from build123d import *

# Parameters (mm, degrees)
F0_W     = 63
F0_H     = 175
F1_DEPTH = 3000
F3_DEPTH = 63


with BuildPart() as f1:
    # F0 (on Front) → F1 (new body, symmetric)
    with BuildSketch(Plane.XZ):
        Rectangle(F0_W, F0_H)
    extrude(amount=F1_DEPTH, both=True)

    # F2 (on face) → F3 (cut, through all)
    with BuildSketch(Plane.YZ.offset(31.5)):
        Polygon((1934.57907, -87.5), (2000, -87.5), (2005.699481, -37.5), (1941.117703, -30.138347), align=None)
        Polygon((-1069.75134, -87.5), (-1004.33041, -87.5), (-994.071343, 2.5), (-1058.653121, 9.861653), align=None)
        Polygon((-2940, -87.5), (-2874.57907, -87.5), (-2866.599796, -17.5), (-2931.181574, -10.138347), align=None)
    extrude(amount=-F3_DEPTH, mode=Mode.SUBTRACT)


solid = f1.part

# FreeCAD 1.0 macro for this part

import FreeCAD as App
import Part
import Sketcher

doc = App.newDocument("Part")
body = doc.addObject("PartDesign::Body", "Body")

# Sketch on XZ plane
sketch1 = body.newObject("Sketcher::SketchObject", "Sketch")
sketch1.AttachmentSupport = (doc.getObject("XZ_Plane"), [""])
sketch1.MapMode = "FlatFace"
sketch1.addGeometry([
    Part.LineSegment(App.Vector(-31.5, 87.5, 0), App.Vector(-31.5, -87.5, 0)),
    Part.LineSegment(App.Vector(-31.5, -87.5, 0), App.Vector(31.5, -87.5, 0)),
    Part.LineSegment(App.Vector(31.5, -87.5, 0), App.Vector(31.5, 87.5, 0)),
    Part.LineSegment(App.Vector(31.5, 87.5, 0), App.Vector(-31.5, 87.5, 0)),
], False)
sketch1.addConstraint([
    Sketcher.Constraint("Coincident", 0, 2, 1, 1),
    Sketcher.Constraint("Coincident", 1, 2, 2, 1),
    Sketcher.Constraint("Coincident", 2, 2, 3, 1),
    Sketcher.Constraint("Coincident", 3, 2, 0, 1),
    Sketcher.Constraint("Vertical", 0),
    Sketcher.Constraint("Horizontal", 1),
    Sketcher.Constraint("Vertical", 2),
    Sketcher.Constraint("Horizontal", 3),
    Sketcher.Constraint("Symmetric", 0, 2, 2, 2, -1, 1),
    Sketcher.Constraint("DistanceX", 1, 1, 1, 2, 63.0),
    Sketcher.Constraint("DistanceY", 0, 2, 0, 1, 175.0),
])
pad1 = body.newObject("PartDesign::Pad", "Pad")
pad1.Profile = sketch1
pad1.Length = 6000
pad1.Midplane = True

# Sketch on YZ plane
sketch2 = body.newObject("Sketcher::SketchObject", "Sketch001")
sketch2.AttachmentSupport = (doc.getObject("YZ_Plane"), [""])
sketch2.MapMode = "FlatFace"
sketch2.AttachmentOffset = App.Placement(App.Vector(0, 0, 31.5), App.Rotation())
sketch2.addGeometry([
    Part.LineSegment(App.Vector(1934.57907, -87.5, 0), App.Vector(2000, -87.5, 0)),  # 0
    Part.LineSegment(App.Vector(2000, -87.5, 0), App.Vector(2005.699481, -37.5, 0)),  # 1
    Part.LineSegment(App.Vector(2005.699481, -37.5, 0), App.Vector(1941.117703, -30.138347, 0)),  # 2
    Part.LineSegment(App.Vector(1941.117703, -30.138347, 0), App.Vector(1934.57907, -87.5, 0)),  # 3
    Part.LineSegment(App.Vector(-1069.75134, -87.5, 0), App.Vector(-1004.33041, -87.5, 0)),  # 4
    Part.LineSegment(App.Vector(-1004.33041, -87.5, 0), App.Vector(-994.071343, 2.5, 0)),  # 5
    Part.LineSegment(App.Vector(-994.071343, 2.5, 0), App.Vector(-1058.653121, 9.861653, 0)),  # 6
    Part.LineSegment(App.Vector(-1058.653121, 9.861653, 0), App.Vector(-1069.75134, -87.5, 0)),  # 7
    Part.LineSegment(App.Vector(-2940, -87.5, 0), App.Vector(-2874.57907, -87.5, 0)),  # 8
    Part.LineSegment(App.Vector(-2874.57907, -87.5, 0), App.Vector(-2866.599796, -17.5, 0)),  # 9
    Part.LineSegment(App.Vector(-2866.599796, -17.5, 0), App.Vector(-2931.181574, -10.138347, 0)),  # 10
    Part.LineSegment(App.Vector(-2931.181574, -10.138347, 0), App.Vector(-2940, -87.5, 0)),  # 11
], False)
sketch2.addConstraint([
    Sketcher.Constraint("Coincident", 0, 2, 1, 1),
    Sketcher.Constraint("Coincident", 1, 2, 2, 1),
    Sketcher.Constraint("Coincident", 2, 2, 3, 1),
    Sketcher.Constraint("Coincident", 3, 2, 0, 1),
    Sketcher.Constraint("Coincident", 4, 2, 5, 1),
    Sketcher.Constraint("Coincident", 5, 2, 6, 1),
    Sketcher.Constraint("Coincident", 6, 2, 7, 1),
    Sketcher.Constraint("Coincident", 7, 2, 4, 1),
    Sketcher.Constraint("Coincident", 8, 2, 9, 1),
    Sketcher.Constraint("Coincident", 9, 2, 10, 1),
    Sketcher.Constraint("Coincident", 10, 2, 11, 1),
    Sketcher.Constraint("Coincident", 11, 2, 8, 1),
    Sketcher.Constraint("Horizontal", 0),
    Sketcher.Constraint("Horizontal", 4),
    Sketcher.Constraint("Horizontal", 8),
    Sketcher.Constraint("Perpendicular", 1, 2),
    Sketcher.Constraint("Perpendicular", 2, 3),
    Sketcher.Constraint("Parallel", 3, 5),
    Sketcher.Constraint("Perpendicular", 5, 6),
    Sketcher.Constraint("Perpendicular", 6, 7),
    Sketcher.Constraint("Parallel", 7, 9),
    Sketcher.Constraint("Perpendicular", 9, 10),
    Sketcher.Constraint("Perpendicular", 10, 11),
    Sketcher.Constraint("Horizontal", 3, 2, 4, 2),
    Sketcher.Constraint("Horizontal", 7, 2, 8, 2),
    Sketcher.Constraint("Equal", 0, 4),
    Sketcher.Constraint("Equal", 4, 8),
    Sketcher.Constraint("Distance", 2, 65.0),
    Sketcher.Constraint("DistanceX", -1, 1, 0, 2, 2000.0),
    Sketcher.Constraint("DistanceX", 11, 2, -1, 1, 2940.0),
    Sketcher.Constraint("DistanceY", 0, 2, 1, 2, 50.0),
    Sketcher.Constraint("DistanceY", 4, 2, 5, 2, 90.0),
    Sketcher.Constraint("DistanceY", 8, 2, 9, 2, 70.0),
    Sketcher.Constraint("DistanceY", 0, 2, -1, 1, 87.5),
    Sketcher.Constraint("DistanceX", 0, 1, 0, 2, 65.42093),
    Sketcher.Constraint("DistanceX", 4, 2, -1, 1, 1004.33041),
])
pocket1 = body.newObject("PartDesign::Pocket", "Pocket")
pocket1.Profile = sketch2
pocket1.Type = "ThroughAll"

doc.recompute()
